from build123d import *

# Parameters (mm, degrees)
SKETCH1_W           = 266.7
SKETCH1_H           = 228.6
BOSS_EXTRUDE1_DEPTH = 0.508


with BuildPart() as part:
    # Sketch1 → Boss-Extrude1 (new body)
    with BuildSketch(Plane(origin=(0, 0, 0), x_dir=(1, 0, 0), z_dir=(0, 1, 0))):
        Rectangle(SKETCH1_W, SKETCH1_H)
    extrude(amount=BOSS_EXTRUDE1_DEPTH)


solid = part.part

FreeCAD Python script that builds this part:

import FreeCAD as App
import Part
import Sketcher
from FreeCAD import Vector
Q = App.Units.Quantity

doc = App.newDocument("Part")
body = doc.addObject("PartDesign::Body", "Body")

# Sketch on XZ plane
sketch1 = body.newObject("Sketcher::SketchObject", "Sketch")
sketch1.AttachmentSupport = (doc.getObject("XZ_Plane"), [""])
sketch1.MapMode = "FlatFace"
sketch1.addGeometry(Part.LineSegment(Vector(-133.35, -114.3, 0), Vector(-133.35, 114.3, 0)), False)
sketch1.addGeometry(Part.LineSegment(Vector(-133.35, 114.3, 0), Vector(133.35, 114.3, 0)), False)
sketch1.addGeometry(Part.LineSegment(Vector(133.35, 114.3, 0), Vector(133.35, -114.3, 0)), False)
sketch1.addGeometry(Part.LineSegment(Vector(133.35, -114.3, 0), Vector(-133.35, -114.3, 0)), False)
sketch1.addConstraint(Sketcher.Constraint("Coincident", 0, 2, 1, 1))
sketch1.addConstraint(Sketcher.Constraint("Coincident", 1, 2, 2, 1))
sketch1.addConstraint(Sketcher.Constraint("Coincident", 2, 2, 3, 1))
sketch1.addConstraint(Sketcher.Constraint("Coincident", 3, 2, 0, 1))
sketch1.addConstraint(Sketcher.Constraint("Vertical", 0))
sketch1.addConstraint(Sketcher.Constraint("Horizontal", 1))
sketch1.addConstraint(Sketcher.Constraint("Vertical", 2))
sketch1.addConstraint(Sketcher.Constraint("Horizontal", 3))
sketch1.addConstraint(Sketcher.Constraint("Symmetric", 0, 2, 2, 2, -1, 1))
sketch1.addConstraint(Sketcher.Constraint("DistanceY", 0, 1, 0, 2, Q("9 in")))
sketch1.addConstraint(Sketcher.Constraint("DistanceX", 1, 1, 1, 2, Q("10.5 in")))
pad1 = body.newObject("PartDesign::Pad", "Pad")
pad1.Profile = sketch1
pad1.Length = Q("0.02 in")
pad1.Reversed = True

doc.recompute()
